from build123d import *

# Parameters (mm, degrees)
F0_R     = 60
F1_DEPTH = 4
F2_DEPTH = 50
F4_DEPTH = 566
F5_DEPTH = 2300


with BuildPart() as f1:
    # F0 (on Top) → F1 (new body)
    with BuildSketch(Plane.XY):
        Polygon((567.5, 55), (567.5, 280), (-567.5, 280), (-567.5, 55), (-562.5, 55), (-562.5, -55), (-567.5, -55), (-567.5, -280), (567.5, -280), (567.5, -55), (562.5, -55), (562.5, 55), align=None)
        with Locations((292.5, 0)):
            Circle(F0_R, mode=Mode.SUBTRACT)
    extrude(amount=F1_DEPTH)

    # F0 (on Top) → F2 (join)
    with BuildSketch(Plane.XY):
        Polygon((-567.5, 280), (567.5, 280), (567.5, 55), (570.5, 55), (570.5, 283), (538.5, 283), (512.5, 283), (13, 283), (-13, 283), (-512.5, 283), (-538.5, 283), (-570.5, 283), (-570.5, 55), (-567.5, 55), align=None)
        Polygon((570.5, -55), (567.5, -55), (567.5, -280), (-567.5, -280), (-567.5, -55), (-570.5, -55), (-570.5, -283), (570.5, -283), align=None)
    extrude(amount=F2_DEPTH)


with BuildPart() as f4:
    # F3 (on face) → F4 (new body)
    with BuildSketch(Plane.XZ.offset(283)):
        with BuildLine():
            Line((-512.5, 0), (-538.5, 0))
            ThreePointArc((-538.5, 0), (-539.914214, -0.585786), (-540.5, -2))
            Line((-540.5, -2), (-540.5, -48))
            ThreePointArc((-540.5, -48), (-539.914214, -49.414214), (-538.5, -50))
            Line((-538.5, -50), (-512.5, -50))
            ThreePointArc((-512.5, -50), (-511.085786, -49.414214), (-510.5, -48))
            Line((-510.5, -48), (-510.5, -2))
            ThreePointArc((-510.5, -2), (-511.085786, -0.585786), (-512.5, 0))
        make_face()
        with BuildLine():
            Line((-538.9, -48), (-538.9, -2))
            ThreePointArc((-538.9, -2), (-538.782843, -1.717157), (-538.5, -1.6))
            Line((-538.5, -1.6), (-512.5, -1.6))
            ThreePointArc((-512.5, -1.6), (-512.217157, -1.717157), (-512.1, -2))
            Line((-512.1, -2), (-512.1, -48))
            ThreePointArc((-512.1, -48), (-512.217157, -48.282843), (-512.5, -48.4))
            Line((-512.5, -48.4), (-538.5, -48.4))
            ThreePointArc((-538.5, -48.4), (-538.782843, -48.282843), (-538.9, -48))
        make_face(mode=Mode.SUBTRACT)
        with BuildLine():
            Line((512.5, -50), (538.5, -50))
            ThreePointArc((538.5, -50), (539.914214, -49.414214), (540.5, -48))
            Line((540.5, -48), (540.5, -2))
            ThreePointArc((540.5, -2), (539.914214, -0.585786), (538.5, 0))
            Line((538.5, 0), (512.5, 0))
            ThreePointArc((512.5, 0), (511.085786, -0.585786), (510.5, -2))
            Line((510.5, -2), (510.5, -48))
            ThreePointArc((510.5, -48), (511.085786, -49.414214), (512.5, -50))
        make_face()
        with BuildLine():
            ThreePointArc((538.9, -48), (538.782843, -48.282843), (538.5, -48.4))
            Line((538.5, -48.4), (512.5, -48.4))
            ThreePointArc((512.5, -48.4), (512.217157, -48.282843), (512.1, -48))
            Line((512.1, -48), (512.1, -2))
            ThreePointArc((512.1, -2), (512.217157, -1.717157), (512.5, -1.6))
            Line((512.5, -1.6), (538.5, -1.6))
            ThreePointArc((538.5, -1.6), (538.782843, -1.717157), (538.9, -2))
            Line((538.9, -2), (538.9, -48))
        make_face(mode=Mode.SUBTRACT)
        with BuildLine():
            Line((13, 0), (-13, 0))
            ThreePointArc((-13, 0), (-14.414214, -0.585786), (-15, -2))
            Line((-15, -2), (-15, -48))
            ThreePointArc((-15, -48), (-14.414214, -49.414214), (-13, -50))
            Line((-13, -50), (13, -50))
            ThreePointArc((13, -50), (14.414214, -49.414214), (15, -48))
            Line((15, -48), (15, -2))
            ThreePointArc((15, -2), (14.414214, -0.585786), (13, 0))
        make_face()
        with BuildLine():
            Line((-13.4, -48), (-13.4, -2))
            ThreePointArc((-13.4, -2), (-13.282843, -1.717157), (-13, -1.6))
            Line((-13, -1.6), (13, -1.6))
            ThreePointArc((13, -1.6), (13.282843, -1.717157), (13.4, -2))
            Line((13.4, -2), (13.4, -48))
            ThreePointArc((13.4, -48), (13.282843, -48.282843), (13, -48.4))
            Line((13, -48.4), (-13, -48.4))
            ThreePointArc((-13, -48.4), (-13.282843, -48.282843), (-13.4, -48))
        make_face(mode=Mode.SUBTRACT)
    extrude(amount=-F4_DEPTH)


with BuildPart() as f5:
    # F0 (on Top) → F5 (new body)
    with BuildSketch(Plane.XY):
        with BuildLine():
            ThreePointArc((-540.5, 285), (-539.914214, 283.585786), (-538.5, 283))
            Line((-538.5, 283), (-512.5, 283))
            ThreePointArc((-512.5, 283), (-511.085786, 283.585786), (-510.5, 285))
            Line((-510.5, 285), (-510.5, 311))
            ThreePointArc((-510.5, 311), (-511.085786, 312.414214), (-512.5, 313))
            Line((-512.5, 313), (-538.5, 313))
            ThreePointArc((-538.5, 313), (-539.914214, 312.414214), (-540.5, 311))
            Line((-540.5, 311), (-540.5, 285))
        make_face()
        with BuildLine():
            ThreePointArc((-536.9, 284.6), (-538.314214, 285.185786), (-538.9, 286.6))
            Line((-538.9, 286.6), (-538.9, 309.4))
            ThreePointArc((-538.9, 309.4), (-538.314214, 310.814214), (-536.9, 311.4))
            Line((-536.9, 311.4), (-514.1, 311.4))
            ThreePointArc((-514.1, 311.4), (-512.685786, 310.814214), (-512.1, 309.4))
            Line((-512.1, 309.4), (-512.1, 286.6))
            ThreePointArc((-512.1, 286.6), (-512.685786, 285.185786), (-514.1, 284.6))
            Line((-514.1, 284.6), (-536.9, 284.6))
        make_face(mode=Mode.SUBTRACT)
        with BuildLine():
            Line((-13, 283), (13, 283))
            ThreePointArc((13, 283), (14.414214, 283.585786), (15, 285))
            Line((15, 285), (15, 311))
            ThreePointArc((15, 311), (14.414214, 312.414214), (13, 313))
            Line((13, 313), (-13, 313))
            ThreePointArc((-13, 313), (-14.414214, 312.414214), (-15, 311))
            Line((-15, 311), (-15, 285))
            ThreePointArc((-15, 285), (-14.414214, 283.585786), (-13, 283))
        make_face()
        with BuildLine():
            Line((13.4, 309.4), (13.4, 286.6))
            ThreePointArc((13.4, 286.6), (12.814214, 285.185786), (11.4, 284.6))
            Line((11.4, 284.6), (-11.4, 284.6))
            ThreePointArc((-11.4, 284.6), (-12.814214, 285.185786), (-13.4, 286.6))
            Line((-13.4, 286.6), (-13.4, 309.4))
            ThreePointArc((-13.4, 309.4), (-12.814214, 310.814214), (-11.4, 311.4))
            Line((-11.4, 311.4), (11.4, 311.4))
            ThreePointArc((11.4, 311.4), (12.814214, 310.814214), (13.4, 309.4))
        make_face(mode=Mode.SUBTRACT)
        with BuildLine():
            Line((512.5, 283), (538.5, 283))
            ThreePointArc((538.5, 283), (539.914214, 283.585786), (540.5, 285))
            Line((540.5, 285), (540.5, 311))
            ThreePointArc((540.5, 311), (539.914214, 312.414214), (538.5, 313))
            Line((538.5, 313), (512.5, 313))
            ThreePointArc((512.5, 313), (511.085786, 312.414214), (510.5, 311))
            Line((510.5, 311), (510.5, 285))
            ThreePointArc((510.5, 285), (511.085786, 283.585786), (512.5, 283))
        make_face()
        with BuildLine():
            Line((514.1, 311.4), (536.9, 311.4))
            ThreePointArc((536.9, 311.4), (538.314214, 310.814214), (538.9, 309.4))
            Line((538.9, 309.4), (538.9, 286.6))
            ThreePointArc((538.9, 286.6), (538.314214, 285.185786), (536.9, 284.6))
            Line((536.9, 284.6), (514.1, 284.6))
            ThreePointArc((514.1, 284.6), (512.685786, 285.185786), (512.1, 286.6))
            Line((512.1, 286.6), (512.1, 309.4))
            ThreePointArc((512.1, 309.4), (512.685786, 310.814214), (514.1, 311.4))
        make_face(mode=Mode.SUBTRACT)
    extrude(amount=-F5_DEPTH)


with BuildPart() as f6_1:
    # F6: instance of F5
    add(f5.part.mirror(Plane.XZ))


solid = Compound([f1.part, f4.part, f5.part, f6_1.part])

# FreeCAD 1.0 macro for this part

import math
import FreeCAD as App
import Part
import Sketcher
from FreeCAD import Vector

doc = App.newDocument("Part")
body = doc.addObject("PartDesign::Body", "Body")

sketch1 = doc.addObject("Sketcher::SketchObject", "Sketch")
body.addObject(sketch1)
sketch1.AttachmentSupport = (doc.XY_Plane, [""])
sketch1.MapMode = "FlatFace"
sketch1.addGeometry([
    Part.LineSegment(Vector(568, 55, 0), Vector(568, 280, 0)),
    Part.LineSegment(Vector(568, 280, 0), Vector(-568, 280, 0)),
    Part.LineSegment(Vector(-568, 280, 0), Vector(-568, 55, 0)),
    Part.LineSegment(Vector(-568, 55, 0), Vector(-562, 55, 0)),
    Part.LineSegment(Vector(-562, 55, 0), Vector(-562, -55, 0)),
    Part.LineSegment(Vector(-562, -55, 0), Vector(-568, -55, 0)),
    Part.LineSegment(Vector(-568, -55, 0), Vector(-568, -280, 0)),
    Part.LineSegment(Vector(-568, -280, 0), Vector(568, -280, 0)),
    Part.LineSegment(Vector(568, -280, 0), Vector(568, -55, 0)),
    Part.LineSegment(Vector(568, -55, 0), Vector(562, -55, 0)),
    Part.LineSegment(Vector(562, -55, 0), Vector(562, 55, 0)),
    Part.LineSegment(Vector(562, 55, 0), Vector(568, 55, 0)),
    Part.Circle(Vector(292, 0, 0), Vector(0, 0, 1), 60),
], False)
sketch1.addConstraint([
    Sketcher.Constraint("Coincident", 0, 2, 1, 1),
    Sketcher.Constraint("Coincident", 1, 2, 2, 1),
    Sketcher.Constraint("Coincident", 2, 2, 3, 1),
    Sketcher.Constraint("Coincident", 3, 2, 4, 1),
    Sketcher.Constraint("Coincident", 4, 2, 5, 1),
    Sketcher.Constraint("Coincident", 5, 2, 6, 1),
    Sketcher.Constraint("Coincident", 6, 2, 7, 1),
    Sketcher.Constraint("Coincident", 7, 2, 8, 1),
    Sketcher.Constraint("Coincident", 8, 2, 9, 1),
    Sketcher.Constraint("Coincident", 9, 2, 10, 1),
    Sketcher.Constraint("Coincident", 10, 2, 11, 1),
    Sketcher.Constraint("Coincident", 11, 2, 0, 1),
    Sketcher.Constraint("Vertical", 0),
    Sketcher.Constraint("Horizontal", 1),
    Sketcher.Constraint("Vertical", 2),
    Sketcher.Constraint("Horizontal", 3),
    Sketcher.Constraint("Vertical", 4),
    Sketcher.Constraint("Horizontal", 5),
    Sketcher.Constraint("Vertical", 6),
    Sketcher.Constraint("Horizontal", 7),
    Sketcher.Constraint("Vertical", 8),
    Sketcher.Constraint("Horizontal", 9),
    Sketcher.Constraint("Vertical", 10),
    Sketcher.Constraint("Horizontal", 11),
    Sketcher.Constraint("Symmetric", 0, 2, 6, 2, -1, 1),
    Sketcher.Constraint("Symmetric", 2, 2, 8, 2, -1, 1),
    Sketcher.Constraint("Symmetric", 4, 2, 10, 2, -1, 1),
    Sketcher.Constraint("Symmetric", 5, 2, 8, 2, -2),
    Sketcher.Constraint("PointOnObject", 12, 3, -1),
    Sketcher.Constraint("Diameter", 12, 120.0),
    Sketcher.Constraint("DistanceX", 1, 2, 1, 1, 1135.0),
    Sketcher.Constraint("DistanceX", 3, 1, 3, 2, 5.0),
    Sketcher.Constraint("DistanceY", 0, 1, 0, 2, 225.0),
    Sketcher.Constraint("DistanceY", 4, 2, 4, 1, 110.0),
    Sketcher.Constraint("DistanceX", 12, 3, 0, 2, 275.0),
])
pad1 = doc.addObject("PartDesign::Pad", "Pad")
body.addObject(pad1)
pad1.Profile = sketch1
pad1.Length = 4

sketch2 = doc.addObject("Sketcher::SketchObject", "Sketch001")
body.addObject(sketch2)
sketch2.AttachmentSupport = (doc.XY_Plane, [""])
sketch2.MapMode = "FlatFace"
sketch2.addGeometry([
    Part.LineSegment(Vector(-567.5, 280, 0), Vector(567.5, 280, 0)),
    Part.LineSegment(Vector(567.5, 280, 0), Vector(567.5, 55, 0)),
    Part.LineSegment(Vector(567.5, 55, 0), Vector(570.5, 55, 0)),
    Part.LineSegment(Vector(570.5, 55, 0), Vector(570.5, 283, 0)),
    Part.LineSegment(Vector(570.5, 283, 0), Vector(-570.5, 283, 0)),
    Part.LineSegment(Vector(-570.5, 283, 0), Vector(-570.5, 55, 0)),
    Part.LineSegment(Vector(-570.5, 55, 0), Vector(-567.5, 55, 0)),
    Part.LineSegment(Vector(-567.5, 55, 0), Vector(-567.5, 280, 0)),
    Part.LineSegment(Vector(570.5, -55, 0), Vector(567.5, -55, 0)),
    Part.LineSegment(Vector(567.5, -55, 0), Vector(567.5, -280, 0)),
    Part.LineSegment(Vector(567.5, -280, 0), Vector(-567.5, -280, 0)),
    Part.LineSegment(Vector(-567.5, -280, 0), Vector(-567.5, -55, 0)),
    Part.LineSegment(Vector(-567.5, -55, 0), Vector(-570.5, -55, 0)),
    Part.LineSegment(Vector(-570.5, -55, 0), Vector(-570.5, -283, 0)),
    Part.LineSegment(Vector(-570.5, -283, 0), Vector(570.5, -283, 0)),
    Part.LineSegment(Vector(570.5, -283, 0), Vector(570.5, -55, 0)),
], False)
sketch2.addConstraint([
    Sketcher.Constraint("Coincident", 0, 2, 1, 1),
    Sketcher.Constraint("Coincident", 1, 2, 2, 1),
    Sketcher.Constraint("Coincident", 2, 2, 3, 1),
    Sketcher.Constraint("Coincident", 3, 2, 4, 1),
    Sketcher.Constraint("Coincident", 4, 2, 5, 1),
    Sketcher.Constraint("Coincident", 5, 2, 6, 1),
    Sketcher.Constraint("Coincident", 6, 2, 7, 1),
    Sketcher.Constraint("Coincident", 7, 2, 0, 1),
    Sketcher.Constraint("Coincident", 8, 2, 9, 1),
    Sketcher.Constraint("Coincident", 9, 2, 10, 1),
    Sketcher.Constraint("Coincident", 10, 2, 11, 1),
    Sketcher.Constraint("Coincident", 11, 2, 12, 1),
    Sketcher.Constraint("Coincident", 12, 2, 13, 1),
    Sketcher.Constraint("Coincident", 13, 2, 14, 1),
    Sketcher.Constraint("Coincident", 14, 2, 15, 1),
    Sketcher.Constraint("Coincident", 15, 2, 8, 1),
    Sketcher.Constraint("Horizontal", 0),
    Sketcher.Constraint("Vertical", 1),
    Sketcher.Constraint("Horizontal", 2),
    Sketcher.Constraint("Vertical", 3),
    Sketcher.Constraint("Horizontal", 4),
    Sketcher.Constraint("Vertical", 5),
    Sketcher.Constraint("Horizontal", 6),
    Sketcher.Constraint("Vertical", 7),
    Sketcher.Constraint("Horizontal", 8),
    Sketcher.Constraint("Vertical", 9),
    Sketcher.Constraint("Horizontal", 10),
    Sketcher.Constraint("Vertical", 11),
    Sketcher.Constraint("Horizontal", 12),
    Sketcher.Constraint("Vertical", 13),
    Sketcher.Constraint("Horizontal", 14),
    Sketcher.Constraint("Vertical", 15),
    Sketcher.Constraint("Symmetric", 6, 2, 8, 2, -1, 1),
    Sketcher.Constraint("Symmetric", 0, 2, 10, 2, -1, 1),
    Sketcher.Constraint("Symmetric", 2, 2, 12, 2, -1, 1),
    Sketcher.Constraint("Symmetric", 4, 2, 14, 2, -1, 1),
    Sketcher.Constraint("Symmetric", 2, 2, 5, 2, -2),
    Sketcher.Constraint("Vertical", 1, 2, 8, 2),
    Sketcher.Constraint("DistanceX", 0, 1, 0, 2, 1135.0),
    Sketcher.Constraint("DistanceX", 2, 1, 2, 2, 3.0),
    Sketcher.Constraint("DistanceY", 1, 2, 1, 1, 225.0),
    Sketcher.Constraint("DistanceY", 3, 1, 3, 2, 228.0),
    Sketcher.Constraint("DistanceY", -1, 1, 0, 2, 280.0),
])
pad2 = doc.addObject("PartDesign::Pad", "Pad001")
body.addObject(pad2)
pad2.Profile = sketch2
pad2.Length = 50
body2 = doc.addObject("PartDesign::Body", "Body001")
body2.AllowCompound = True

sketch3 = doc.addObject("Sketcher::SketchObject", "Sketch002")
body2.addObject(sketch3)
sketch3.AttachmentSupport = (doc.getObject("XZ_Plane001"), [""])
sketch3.MapMode = "FlatFace"
sketch3.AttachmentOffset = App.Placement(Vector(0, 0, 283), App.Rotation())
sketch3.addGeometry([
    Part.LineSegment(Vector(-512.5, 0, 0), Vector(-538.5, 0, 0)),
    Part.ArcOfCircle(Part.Circle(Vector(-538.5, -2, 0), Vector(0, 0, 1), 2), math.radians(90), math.radians(180)),
    Part.LineSegment(Vector(-540.5, -2, 0), Vector(-540.5, -48, 0)),
    Part.ArcOfCircle(Part.Circle(Vector(-538.5, -48, 0), Vector(0, 0, 1), 2), math.radians(180), math.radians(270)),
    Part.LineSegment(Vector(-538.5, -50, 0), Vector(-512.5, -50, 0)),
    Part.ArcOfCircle(Part.Circle(Vector(-512.5, -48, 0), Vector(0, 0, 1), 2), math.radians(-90), math.radians(0)),
    Part.LineSegment(Vector(-510.5, -48, 0), Vector(-510.5, -2, 0)),
    Part.ArcOfCircle(Part.Circle(Vector(-512.5, -2, 0), Vector(0, 0, 1), 2), math.radians(0), math.radians(90)),
    Part.ArcOfCircle(Part.Circle(Vector(-538.5, -48, 0), Vector(0, 0, 1), 0.4), math.radians(180), math.radians(270)),
    Part.LineSegment(Vector(-538.9, -48, 0), Vector(-538.9, -2, 0)),
    Part.ArcOfCircle(Part.Circle(Vector(-538.5, -2, 0), Vector(0, 0, 1), 0.4), math.radians(90), math.radians(180)),
    Part.LineSegment(Vector(-538.5, -1.6, 0), Vector(-512.5, -1.6, 0)),
    Part.ArcOfCircle(Part.Circle(Vector(-512.5, -2, 0), Vector(0, 0, 1), 0.4), math.radians(0), math.radians(90)),
    Part.LineSegment(Vector(-512.1, -2, 0), Vector(-512.1, -48, 0)),
    Part.ArcOfCircle(Part.Circle(Vector(-512.5, -48, 0), Vector(0, 0, 1), 0.4), math.radians(-90), math.radians(0)),
    Part.LineSegment(Vector(-512.5, -48.4, 0), Vector(-538.5, -48.4, 0)),
    Part.LineSegment(Vector(512.5, -50, 0), Vector(538.5, -50, 0)),
    Part.ArcOfCircle(Part.Circle(Vector(538.5, -48, 0), Vector(0, 0, 1), 2), math.radians(-90), math.radians(0)),
    Part.LineSegment(Vector(540.5, -48, 0), Vector(540.5, -2, 0)),
    Part.ArcOfCircle(Part.Circle(Vector(538.5, -2, 0), Vector(0, 0, 1), 2), math.radians(0), math.radians(90)),
    Part.LineSegment(Vector(538.5, 0, 0), Vector(512.5, 0, 0)),
    Part.ArcOfCircle(Part.Circle(Vector(512.5, -2, 0), Vector(0, 0, 1), 2), math.radians(90), math.radians(180)),
    Part.LineSegment(Vector(510.5, -2, 0), Vector(510.5, -48, 0)),
    Part.ArcOfCircle(Part.Circle(Vector(512.5, -48, 0), Vector(0, 0, 1), 2), math.radians(180), math.radians(270)),
    Part.LineSegment(Vector(538.9, -2, 0), Vector(538.9, -48, 0)),
    Part.ArcOfCircle(Part.Circle(Vector(538.5, -48, 0), Vector(0, 0, 1), 0.4), math.radians(-90), math.radians(0)),
    Part.LineSegment(Vector(538.5, -48.4, 0), Vector(512.5, -48.4, 0)),
    Part.ArcOfCircle(Part.Circle(Vector(512.5, -48, 0), Vector(0, 0, 1), 0.4), math.radians(180), math.radians(270)),
    Part.LineSegment(Vector(512.1, -48, 0), Vector(512.1, -2, 0)),
    Part.ArcOfCircle(Part.Circle(Vector(512.5, -2, 0), Vector(0, 0, 1), 0.4), math.radians(90), math.radians(180)),
    Part.LineSegment(Vector(512.5, -1.6, 0), Vector(538.5, -1.6, 0)),
    Part.ArcOfCircle(Part.Circle(Vector(538.5, -2, 0), Vector(0, 0, 1), 0.4), math.radians(0), math.radians(90)),
    Part.LineSegment(Vector(13, 0, 0), Vector(-13, 0, 0)),
    Part.ArcOfCircle(Part.Circle(Vector(-13, -2, 0), Vector(0, 0, 1), 2), math.radians(90), math.radians(180)),
    Part.LineSegment(Vector(-15, -2, 0), Vector(-15, -48, 0)),
    Part.ArcOfCircle(Part.Circle(Vector(-13, -48, 0), Vector(0, 0, 1), 2), math.radians(180), math.radians(270)),
    Part.LineSegment(Vector(-13, -50, 0), Vector(13, -50, 0)),
    Part.ArcOfCircle(Part.Circle(Vector(13, -48, 0), Vector(0, 0, 1), 2), math.radians(-90), math.radians(0)),
    Part.LineSegment(Vector(15, -48, 0), Vector(15, -2, 0)),
    Part.ArcOfCircle(Part.Circle(Vector(13, -2, 0), Vector(0, 0, 1), 2), math.radians(0), math.radians(90)),
    Part.ArcOfCircle(Part.Circle(Vector(-13, -48, 0), Vector(0, 0, 1), 0.4), math.radians(180), math.radians(270)),
    Part.LineSegment(Vector(-13.4, -48, 0), Vector(-13.4, -2, 0)),
    Part.ArcOfCircle(Part.Circle(Vector(-13, -2, 0), Vector(0, 0, 1), 0.4), math.radians(90), math.radians(180)),
    Part.LineSegment(Vector(-13, -1.6, 0), Vector(13, -1.6, 0)),
    Part.ArcOfCircle(Part.Circle(Vector(13, -2, 0), Vector(0, 0, 1), 0.4), math.radians(0), math.radians(90)),
    Part.LineSegment(Vector(13.4, -2, 0), Vector(13.4, -48, 0)),
    Part.ArcOfCircle(Part.Circle(Vector(13, -48, 0), Vector(0, 0, 1), 0.4), math.radians(-90), math.radians(0)),
    Part.LineSegment(Vector(13, -48.4, 0), Vector(-13, -48.4, 0)),
], False)
sketch3.addConstraint([
    Sketcher.Constraint("Tangent", 0, 2, 1, 1),
    Sketcher.Constraint("Tangent", 1, 2, 2, 1),
    Sketcher.Constraint("Tangent", 2, 2, 3, 1),
    Sketcher.Constraint("Tangent", 3, 2, 4, 1),
    Sketcher.Constraint("Tangent", 4, 2, 5, 1),
    Sketcher.Constraint("Tangent", 5, 2, 6, 1),
    Sketcher.Constraint("Tangent", 6, 2, 7, 1),
    Sketcher.Constraint("Tangent", 7, 2, 0, 1),
    Sketcher.Constraint("Coincident", 8, 1, 9, 1),
    Sketcher.Constraint("Coincident", 9, 2, 10, 2),
    Sketcher.Constraint("Coincident", 10, 1, 11, 1),
    Sketcher.Constraint("Coincident", 11, 2, 12, 2),
    Sketcher.Constraint("Coincident", 12, 1, 13, 1),
    Sketcher.Constraint("Coincident", 13, 2, 14, 2),
    Sketcher.Constraint("Coincident", 14, 1, 15, 1),
    Sketcher.Constraint("Coincident", 15, 2, 8, 2),
    Sketcher.Constraint("Tangent", 16, 2, 17, 1),
    Sketcher.Constraint("Tangent", 17, 2, 18, 1),
    Sketcher.Constraint("Tangent", 18, 2, 19, 1),
    Sketcher.Constraint("Tangent", 19, 2, 20, 1),
    Sketcher.Constraint("Tangent", 20, 2, 21, 1),
    Sketcher.Constraint("Tangent", 21, 2, 22, 1),
    Sketcher.Constraint("Tangent", 22, 2, 23, 1),
    Sketcher.Constraint("Tangent", 23, 2, 16, 1),
    Sketcher.Constraint("Coincident", 24, 2, 25, 2),
    Sketcher.Constraint("Coincident", 25, 1, 26, 1),
    Sketcher.Constraint("Coincident", 26, 2, 27, 2),
    Sketcher.Constraint("Coincident", 27, 1, 28, 1),
    Sketcher.Constraint("Coincident", 28, 2, 29, 2),
    Sketcher.Constraint("Coincident", 29, 1, 30, 1),
    Sketcher.Constraint("Coincident", 30, 2, 31, 2),
    Sketcher.Constraint("Coincident", 31, 1, 24, 1),
    Sketcher.Constraint("Tangent", 32, 2, 33, 1),
    Sketcher.Constraint("Tangent", 33, 2, 34, 1),
    Sketcher.Constraint("Tangent", 34, 2, 35, 1),
    Sketcher.Constraint("Tangent", 35, 2, 36, 1),
    Sketcher.Constraint("Tangent", 36, 2, 37, 1),
    Sketcher.Constraint("Tangent", 37, 2, 38, 1),
    Sketcher.Constraint("Tangent", 38, 2, 39, 1),
    Sketcher.Constraint("Tangent", 39, 2, 32, 1),
    Sketcher.Constraint("Coincident", 40, 1, 41, 1),
    Sketcher.Constraint("Coincident", 41, 2, 42, 2),
    Sketcher.Constraint("Coincident", 42, 1, 43, 1),
    Sketcher.Constraint("Coincident", 43, 2, 44, 2),
    Sketcher.Constraint("Coincident", 44, 1, 45, 1),
    Sketcher.Constraint("Coincident", 45, 2, 46, 2),
    Sketcher.Constraint("Coincident", 46, 1, 47, 1),
    Sketcher.Constraint("Coincident", 47, 2, 40, 2),
    Sketcher.Constraint("Horizontal", 0),
    Sketcher.Constraint("Vertical", 2),
    Sketcher.Constraint("Horizontal", 4),
    Sketcher.Constraint("Vertical", 6),
    Sketcher.Constraint("Vertical", 9),
    Sketcher.Constraint("Horizontal", 11),
    Sketcher.Constraint("Vertical", 13),
    Sketcher.Constraint("Horizontal", 15),
    Sketcher.Constraint("Horizontal", 16),
    Sketcher.Constraint("Vertical", 18),
    Sketcher.Constraint("Horizontal", 20),
    Sketcher.Constraint("Vertical", 22),
    Sketcher.Constraint("Vertical", 24),
    Sketcher.Constraint("Horizontal", 26),
    Sketcher.Constraint("Vertical", 28),
    Sketcher.Constraint("Horizontal", 30),
    Sketcher.Constraint("Horizontal", 32),
    Sketcher.Constraint("Vertical", 34),
    Sketcher.Constraint("Horizontal", 36),
    Sketcher.Constraint("Vertical", 38),
    Sketcher.Constraint("Vertical", 41),
    Sketcher.Constraint("Horizontal", 43),
    Sketcher.Constraint("Vertical", 45),
    Sketcher.Constraint("Horizontal", 47),
    Sketcher.Constraint("Coincident", 8, 3, 3, 3),
    Sketcher.Constraint("Coincident", 10, 3, 1, 3),
    Sketcher.Constraint("Coincident", 12, 3, 7, 3),
    Sketcher.Constraint("Coincident", 25, 3, 17, 3),
    Sketcher.Constraint("Coincident", 27, 3, 23, 3),
    Sketcher.Constraint("Coincident", 29, 3, 21, 3),
    Sketcher.Constraint("Coincident", 40, 3, 35, 3),
    Sketcher.Constraint("Coincident", 42, 3, 33, 3),
    Sketcher.Constraint("Coincident", 44, 3, 39, 3),
    Sketcher.Constraint("Equal", 1, 3),
    Sketcher.Constraint("Equal", 3, 5),
    Sketcher.Constraint("Equal", 5, 7),
    Sketcher.Constraint("Equal", 12, 14),
    Sketcher.Constraint("Equal", 7, 17),
    Sketcher.Constraint("Equal", 17, 19),
    Sketcher.Constraint("Equal", 19, 21),
    Sketcher.Constraint("Equal", 21, 23),
    Sketcher.Constraint("Equal", 14, 25),
    Sketcher.Constraint("Equal", 29, 31),
    Sketcher.Constraint("Equal", 23, 33),
    Sketcher.Constraint("Equal", 33, 35),
    Sketcher.Constraint("Equal", 35, 37),
    Sketcher.Constraint("Equal", 37, 39),
    Sketcher.Constraint("Equal", 31, 40),
    Sketcher.Constraint("Equal", 44, 46),
    Sketcher.Constraint("Symmetric", 0, 2, 19, 2, -1, 1),
    Sketcher.Constraint("Symmetric", 32, 2, 39, 2, -1, 1),
    Sketcher.Constraint("Symmetric", 7, 3, 21, 3, -2),
    Sketcher.Constraint("Symmetric", 15, 2, 25, 1, -2),
    Sketcher.Constraint("Horizontal", 27, 3, 35, 3),
    Sketcher.Constraint("Horizontal", 5, 2, 8, 1),
    Sketcher.Constraint("Horizontal", 6, 2, 9, 2),
    Sketcher.Constraint("Horizontal", 9, 2, 12, 1),
    Sketcher.Constraint("Horizontal", 8, 1, 13, 2),
    Sketcher.Constraint("Horizontal", 22, 2, 24, 2),
    Sketcher.Constraint("Horizontal", 24, 2, 27, 1),
    Sketcher.Constraint("Horizontal", 21, 2, 28, 2),
    Sketcher.Constraint("Horizontal", 28, 2, 31, 1),
    Sketcher.Constraint("Horizontal", 37, 2, 40, 1),
    Sketcher.Constraint("Horizontal", 38, 2, 41, 2),
    Sketcher.Constraint("Horizontal", 41, 2, 44, 1),
    Sketcher.Constraint("Horizontal", 40, 1, 45, 2),
    Sketcher.Constraint("Vertical", 3, 2, 10, 1),
    Sketcher.Constraint("Vertical", 7, 2, 11, 2),
    Sketcher.Constraint("Vertical", 11, 2, 14, 1),
    Sketcher.Constraint("Vertical", 10, 1, 15, 2),
    Sketcher.Constraint("Vertical", 23, 2, 26, 2),
    Sketcher.Constraint("Vertical", 26, 2, 29, 1),
    Sketcher.Constraint("Vertical", 25, 1, 30, 2),
    Sketcher.Constraint("Vertical", 35, 2, 42, 1),
    Sketcher.Constraint("Vertical", 39, 2, 43, 2),
    Sketcher.Constraint("Vertical", 43, 2, 46, 1),
    Sketcher.Constraint("Vertical", 42, 1, 47, 2),
    Sketcher.Constraint("Equal", 30, 32),
    Sketcher.Constraint("Radius", 1, 1.999999),
    Sketcher.Constraint("Radius", 8, 0.399999),
    Sketcher.Constraint("DistanceX", 0, 2, 0, 1, 26.0),
    Sketcher.Constraint("DistanceY", 2, 2, 2, 1, 46.0),
    Sketcher.Constraint("DistanceX", 1, 3, -1, 1, 538.500001),
])
pad3 = doc.addObject("PartDesign::Pad", "Pad002")
body2.addObject(pad3)
pad3.Profile = sketch3
pad3.Length = 566
pad3.Reversed = True
body3 = doc.addObject("PartDesign::Body", "Body002")
body3.AllowCompound = True

sketch4 = doc.addObject("Sketcher::SketchObject", "Sketch003")
body3.addObject(sketch4)
sketch4.AttachmentSupport = (doc.getObject("XY_Plane002"), [""])
sketch4.MapMode = "FlatFace"
sketch4.addGeometry([
    Part.ArcOfCircle(Part.Circle(Vector(-538.5, 285, 0), Vector(0, 0, 1), 2), math.radians(180), math.radians(270)),
    Part.LineSegment(Vector(-538.5, 283, 0), Vector(-512.5, 283, 0)),
    Part.ArcOfCircle(Part.Circle(Vector(-512.5, 285, 0), Vector(0, 0, 1), 2), math.radians(-90), math.radians(0)),
    Part.LineSegment(Vector(-510.5, 285, 0), Vector(-510.5, 311, 0)),
    Part.ArcOfCircle(Part.Circle(Vector(-512.5, 311, 0), Vector(0, 0, 1), 2), math.radians(0), math.radians(90)),
    Part.LineSegment(Vector(-512.5, 313, 0), Vector(-538.5, 313, 0)),
    Part.ArcOfCircle(Part.Circle(Vector(-538.5, 311, 0), Vector(0, 0, 1), 2), math.radians(90), math.radians(180)),
    Part.LineSegment(Vector(-540.5, 311, 0), Vector(-540.5, 285, 0)),
    Part.LineSegment(Vector(-514.1, 284.6, 0), Vector(-536.9, 284.6, 0)),
    Part.ArcOfCircle(Part.Circle(Vector(-536.9, 286.6, 0), Vector(0, 0, 1), 2), math.radians(180), math.radians(270)),
    Part.LineSegment(Vector(-538.9, 286.6, 0), Vector(-538.9, 309.4, 0)),
    Part.ArcOfCircle(Part.Circle(Vector(-536.9, 309.4, 0), Vector(0, 0, 1), 2), math.radians(90), math.radians(180)),
    Part.LineSegment(Vector(-536.9, 311.4, 0), Vector(-514.1, 311.4, 0)),
    Part.ArcOfCircle(Part.Circle(Vector(-514.1, 309.4, 0), Vector(0, 0, 1), 2), math.radians(0), math.radians(90)),
    Part.LineSegment(Vector(-512.1, 309.4, 0), Vector(-512.1, 286.6, 0)),
    Part.ArcOfCircle(Part.Circle(Vector(-514.1, 286.6, 0), Vector(0, 0, 1), 2), math.radians(-90), math.radians(0)),
    Part.LineSegment(Vector(-13, 283, 0), Vector(13, 283, 0)),
    Part.ArcOfCircle(Part.Circle(Vector(13, 285, 0), Vector(0, 0, 1), 2), math.radians(-90), math.radians(0)),
    Part.LineSegment(Vector(15, 285, 0), Vector(15, 311, 0)),
    Part.ArcOfCircle(Part.Circle(Vector(13, 311, 0), Vector(0, 0, 1), 2), math.radians(0), math.radians(90)),
    Part.LineSegment(Vector(13, 313, 0), Vector(-13, 313, 0)),
    Part.ArcOfCircle(Part.Circle(Vector(-13, 311, 0), Vector(0, 0, 1), 2), math.radians(90), math.radians(180)),
    Part.LineSegment(Vector(-15, 311, 0), Vector(-15, 285, 0)),
    Part.ArcOfCircle(Part.Circle(Vector(-13, 285, 0), Vector(0, 0, 1), 2), math.radians(180), math.radians(270)),
    Part.ArcOfCircle(Part.Circle(Vector(11.4, 309.4, 0), Vector(0, 0, 1), 2), math.radians(0), math.radians(90)),
    Part.LineSegment(Vector(13.4, 309.4, 0), Vector(13.4, 286.6, 0)),
    Part.ArcOfCircle(Part.Circle(Vector(11.4, 286.6, 0), Vector(0, 0, 1), 2), math.radians(-90), math.radians(0)),
    Part.LineSegment(Vector(11.4, 284.6, 0), Vector(-11.4, 284.6, 0)),
    Part.ArcOfCircle(Part.Circle(Vector(-11.4, 286.6, 0), Vector(0, 0, 1), 2), math.radians(180), math.radians(270)),
    Part.LineSegment(Vector(-13.4, 286.6, 0), Vector(-13.4, 309.4, 0)),
    Part.ArcOfCircle(Part.Circle(Vector(-11.4, 309.4, 0), Vector(0, 0, 1), 2), math.radians(90), math.radians(180)),
    Part.LineSegment(Vector(-11.4, 311.4, 0), Vector(11.4, 311.4, 0)),
    Part.LineSegment(Vector(512.5, 283, 0), Vector(538.5, 283, 0)),
    Part.ArcOfCircle(Part.Circle(Vector(538.5, 285, 0), Vector(0, 0, 1), 2), math.radians(-90), math.radians(0)),
    Part.LineSegment(Vector(540.5, 285, 0), Vector(540.5, 311, 0)),
    Part.ArcOfCircle(Part.Circle(Vector(538.5, 311, 0), Vector(0, 0, 1), 2), math.radians(0), math.radians(90)),
    Part.LineSegment(Vector(538.5, 313, 0), Vector(512.5, 313, 0)),
    Part.ArcOfCircle(Part.Circle(Vector(512.5, 311, 0), Vector(0, 0, 1), 2), math.radians(90), math.radians(180)),
    Part.LineSegment(Vector(510.5, 311, 0), Vector(510.5, 285, 0)),
    Part.ArcOfCircle(Part.Circle(Vector(512.5, 285, 0), Vector(0, 0, 1), 2), math.radians(180), math.radians(270)),
    Part.ArcOfCircle(Part.Circle(Vector(514.1, 309.4, 0), Vector(0, 0, 1), 2), math.radians(90), math.radians(180)),
    Part.LineSegment(Vector(514.1, 311.4, 0), Vector(536.9, 311.4, 0)),
    Part.ArcOfCircle(Part.Circle(Vector(536.9, 309.4, 0), Vector(0, 0, 1), 2), math.radians(0), math.radians(90)),
    Part.LineSegment(Vector(538.9, 309.4, 0), Vector(538.9, 286.6, 0)),
    Part.ArcOfCircle(Part.Circle(Vector(536.9, 286.6, 0), Vector(0, 0, 1), 2), math.radians(-90), math.radians(0)),
    Part.LineSegment(Vector(536.9, 284.6, 0), Vector(514.1, 284.6, 0)),
    Part.ArcOfCircle(Part.Circle(Vector(514.1, 286.6, 0), Vector(0, 0, 1), 2), math.radians(180), math.radians(270)),
    Part.LineSegment(Vector(512.1, 286.6, 0), Vector(512.1, 309.4, 0)),
], False)
sketch4.addConstraint([
    Sketcher.Constraint("Tangent", 0, 2, 1, 1),
    Sketcher.Constraint("Tangent", 1, 2, 2, 1),
    Sketcher.Constraint("Tangent", 2, 2, 3, 1),
    Sketcher.Constraint("Tangent", 3, 2, 4, 1),
    Sketcher.Constraint("Tangent", 4, 2, 5, 1),
    Sketcher.Constraint("Tangent", 5, 2, 6, 1),
    Sketcher.Constraint("Tangent", 6, 2, 7, 1),
    Sketcher.Constraint("Tangent", 7, 2, 0, 1),
    Sketcher.Constraint("Tangent", 8, 2, 9, 2),
    Sketcher.Constraint("Tangent", 9, 1, 10, 1),
    Sketcher.Constraint("Tangent", 10, 2, 11, 2),
    Sketcher.Constraint("Tangent", 11, 1, 12, 1),
    Sketcher.Constraint("Tangent", 12, 2, 13, 2),
    Sketcher.Constraint("Tangent", 13, 1, 14, 1),
    Sketcher.Constraint("Tangent", 14, 2, 15, 2),
    Sketcher.Constraint("Tangent", 15, 1, 8, 1),
    Sketcher.Constraint("Tangent", 16, 2, 17, 1),
    Sketcher.Constraint("Tangent", 17, 2, 18, 1),
    Sketcher.Constraint("Tangent", 18, 2, 19, 1),
    Sketcher.Constraint("Tangent", 19, 2, 20, 1),
    Sketcher.Constraint("Tangent", 20, 2, 21, 1),
    Sketcher.Constraint("Tangent", 21, 2, 22, 1),
    Sketcher.Constraint("Tangent", 22, 2, 23, 1),
    Sketcher.Constraint("Tangent", 23, 2, 16, 1),
    Sketcher.Constraint("Tangent", 24, 1, 25, 1),
    Sketcher.Constraint("Tangent", 25, 2, 26, 2),
    Sketcher.Constraint("Tangent", 26, 1, 27, 1),
    Sketcher.Constraint("Tangent", 27, 2, 28, 2),
    Sketcher.Constraint("Tangent", 28, 1, 29, 1),
    Sketcher.Constraint("Tangent", 29, 2, 30, 2),
    Sketcher.Constraint("Tangent", 30, 1, 31, 1),
    Sketcher.Constraint("Tangent", 31, 2, 24, 2),
    Sketcher.Constraint("Tangent", 32, 2, 33, 1),
    Sketcher.Constraint("Tangent", 33, 2, 34, 1),
    Sketcher.Constraint("Tangent", 34, 2, 35, 1),
    Sketcher.Constraint("Tangent", 35, 2, 36, 1),
    Sketcher.Constraint("Tangent", 36, 2, 37, 1),
    Sketcher.Constraint("Tangent", 37, 2, 38, 1),
    Sketcher.Constraint("Tangent", 38, 2, 39, 1),
    Sketcher.Constraint("Tangent", 39, 2, 32, 1),
    Sketcher.Constraint("Tangent", 40, 1, 41, 1),
    Sketcher.Constraint("Tangent", 41, 2, 42, 2),
    Sketcher.Constraint("Tangent", 42, 1, 43, 1),
    Sketcher.Constraint("Tangent", 43, 2, 44, 2),
    Sketcher.Constraint("Tangent", 44, 1, 45, 1),
    Sketcher.Constraint("Tangent", 45, 2, 46, 2),
    Sketcher.Constraint("Tangent", 46, 1, 47, 1),
    Sketcher.Constraint("Tangent", 47, 2, 40, 2),
    Sketcher.Constraint("Horizontal", 1),
    Sketcher.Constraint("Vertical", 3),
    Sketcher.Constraint("Horizontal", 5),
    Sketcher.Constraint("Vertical", 7),
    Sketcher.Constraint("Horizontal", 8),
    Sketcher.Constraint("Vertical", 10),
    Sketcher.Constraint("Horizontal", 12),
    Sketcher.Constraint("Vertical", 14),
    Sketcher.Constraint("Horizontal", 16),
    Sketcher.Constraint("Vertical", 18),
    Sketcher.Constraint("Horizontal", 20),
    Sketcher.Constraint("Vertical", 22),
    Sketcher.Constraint("Vertical", 25),
    Sketcher.Constraint("Horizontal", 27),
    Sketcher.Constraint("Vertical", 29),
    Sketcher.Constraint("Horizontal", 31),
    Sketcher.Constraint("Horizontal", 32),
    Sketcher.Constraint("Vertical", 34),
    Sketcher.Constraint("Horizontal", 36),
    Sketcher.Constraint("Vertical", 38),
    Sketcher.Constraint("Horizontal", 41),
    Sketcher.Constraint("Vertical", 43),
    Sketcher.Constraint("Horizontal", 45),
    Sketcher.Constraint("Vertical", 47),
    Sketcher.Constraint("Equal", 0, 2),
    Sketcher.Constraint("Equal", 2, 4),
    Sketcher.Constraint("Equal", 4, 6),
    Sketcher.Constraint("Equal", 6, 9),
    Sketcher.Constraint("Equal", 9, 11),
    Sketcher.Constraint("Equal", 11, 13),
    Sketcher.Constraint("Equal", 13, 15),
    Sketcher.Constraint("Equal", 15, 17),
    Sketcher.Constraint("Equal", 17, 19),
    Sketcher.Constraint("Equal", 19, 21),
    Sketcher.Constraint("Equal", 21, 23),
    Sketcher.Constraint("Equal", 23, 24),
    Sketcher.Constraint("Equal", 24, 26),
    Sketcher.Constraint("Equal", 26, 28),
    Sketcher.Constraint("Equal", 28, 30),
    Sketcher.Constraint("Equal", 30, 33),
    Sketcher.Constraint("Equal", 33, 35),
    Sketcher.Constraint("Equal", 35, 37),
    Sketcher.Constraint("Equal", 37, 39),
    Sketcher.Constraint("Equal", 39, 40),
    Sketcher.Constraint("Equal", 40, 42),
    Sketcher.Constraint("Equal", 42, 44),
    Sketcher.Constraint("Equal", 44, 46),
    Sketcher.Constraint("Symmetric", 0, 3, 33, 3, -2),
    Sketcher.Constraint("Symmetric", 4, 3, 37, 3, -2),
    Sketcher.Constraint("Symmetric", 13, 3, 40, 3, -2),
    Sketcher.Constraint("Symmetric", 9, 3, 44, 3, -2),
    Sketcher.Constraint("Horizontal", 2, 3, 17, 3),
    Sketcher.Constraint("Horizontal", 6, 3, 19, 3),
    Sketcher.Constraint("Horizontal", 13, 3, 24, 3),
    Sketcher.Constraint("Horizontal", 15, 3, 26, 3),
    Sketcher.Constraint("Equal", 5, 16),
    Sketcher.Constraint("Equal", 12, 27),
    Sketcher.Constraint("Equal", 36, 3),
    Sketcher.Constraint("Equal", 45, 10),
    Sketcher.Constraint("Radius", 0, 1.999999),
    Sketcher.Constraint("DistanceX", 1, 1, 1, 2, 26.0),
    Sketcher.Constraint("DistanceX", 8, 2, 8, 1, 22.8),
    Sketcher.Constraint("DistanceY", -1, 1, 0, 3, 284.999999),
    Sketcher.Constraint("DistanceX", -1, 1, 17, 3, 13.000001),
    Sketcher.Constraint("DistanceX", 0, 3, -1, 1, 538.500001),
    Sketcher.Constraint("DistanceX", 9, 3, -1, 1, 536.900001),
    Sketcher.Constraint("DistanceY", -1, 1, 9, 3, 286.599999),
    Sketcher.Constraint("DistanceX", -1, 1, 24, 3, 11.400001),
])
pad4 = doc.addObject("PartDesign::Pad", "Pad003")
body3.addObject(pad4)
pad4.Profile = sketch4
pad4.Length = 2300
pad4.Reversed = True
body4 = doc.addObject("PartDesign::Body", "Body003")
body4.AllowCompound = True
doc.recompute()

mirroring = doc.addObject("Part::Mirroring", "Mirroring")
mirroring.Source = body3
mirroring.Base = Vector(0, 0, 0)
mirroring.Normal = Vector(0, -1, 0)
body4.BaseFeature = mirroring
doc.recompute()
mirroring.Visibility = False

doc.recompute()
